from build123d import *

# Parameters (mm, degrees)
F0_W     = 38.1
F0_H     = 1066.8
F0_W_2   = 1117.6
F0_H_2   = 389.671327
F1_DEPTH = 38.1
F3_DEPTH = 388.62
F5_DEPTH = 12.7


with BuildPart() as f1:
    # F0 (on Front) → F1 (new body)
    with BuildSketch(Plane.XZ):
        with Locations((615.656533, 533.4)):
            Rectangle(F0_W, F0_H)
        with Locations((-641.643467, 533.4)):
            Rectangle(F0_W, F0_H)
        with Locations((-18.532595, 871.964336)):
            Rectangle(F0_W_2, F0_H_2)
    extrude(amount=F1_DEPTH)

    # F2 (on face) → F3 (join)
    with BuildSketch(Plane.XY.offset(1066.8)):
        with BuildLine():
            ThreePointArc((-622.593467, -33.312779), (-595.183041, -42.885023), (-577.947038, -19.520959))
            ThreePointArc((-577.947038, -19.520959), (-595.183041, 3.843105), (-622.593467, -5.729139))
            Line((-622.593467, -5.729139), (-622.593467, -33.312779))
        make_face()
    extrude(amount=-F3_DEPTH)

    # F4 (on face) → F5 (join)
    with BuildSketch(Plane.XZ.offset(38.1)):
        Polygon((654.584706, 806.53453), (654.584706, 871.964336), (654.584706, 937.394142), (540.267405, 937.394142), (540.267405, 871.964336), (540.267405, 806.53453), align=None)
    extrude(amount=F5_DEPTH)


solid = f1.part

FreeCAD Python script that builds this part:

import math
import FreeCAD as App
import Part
import Sketcher
Q = App.Units.Quantity

doc = App.newDocument("Part")
body = doc.addObject("PartDesign::Body", "Body")
body.AllowCompound = True

sketch1 = body.newObject("Sketcher::SketchObject", "Sketch")
sketch1.AttachmentSupport = (doc.getObject("XZ_Plane"), [""])
sketch1.MapMode = "FlatFace"
sketch1.addGeometry([
    Part.LineSegment(App.Vector(597, 1067, 0), App.Vector(597, 0, 0)),
    Part.LineSegment(App.Vector(597, 0, 0), App.Vector(635, 0, 0)),
    Part.LineSegment(App.Vector(635, 0, 0), App.Vector(635, 1067, 0)),
    Part.LineSegment(App.Vector(635, 1067, 0), App.Vector(597, 1067, 0)),
    Part.LineSegment(App.Vector(-661, 1067, 0), App.Vector(-661, 0, 0)),
    Part.LineSegment(App.Vector(-661, 0, 0), App.Vector(-623, 0, 0)),
    Part.LineSegment(App.Vector(-623, 0, 0), App.Vector(-623, 1067, 0)),
    Part.LineSegment(App.Vector(-623, 1067, 0), App.Vector(-661, 1067, 0)),
    Part.LineSegment(App.Vector(-577, 1067, 0), App.Vector(-577, 677, 0)),
    Part.LineSegment(App.Vector(-577, 677, 0), App.Vector(540, 677, 0)),
    Part.LineSegment(App.Vector(540, 677, 0), App.Vector(540, 1067, 0)),
    Part.LineSegment(App.Vector(540, 1067, 0), App.Vector(-577, 1067, 0)),
], False)
sketch1.addConstraint([
    Sketcher.Constraint("Coincident", 0, 2, 1, 1),
    Sketcher.Constraint("Coincident", 1, 2, 2, 1),
    Sketcher.Constraint("Coincident", 2, 2, 3, 1),
    Sketcher.Constraint("Coincident", 3, 2, 0, 1),
    Sketcher.Constraint("Coincident", 4, 2, 5, 1),
    Sketcher.Constraint("Coincident", 5, 2, 6, 1),
    Sketcher.Constraint("Coincident", 6, 2, 7, 1),
    Sketcher.Constraint("Coincident", 7, 2, 4, 1),
    Sketcher.Constraint("Coincident", 8, 2, 9, 1),
    Sketcher.Constraint("Coincident", 9, 2, 10, 1),
    Sketcher.Constraint("Coincident", 10, 2, 11, 1),
    Sketcher.Constraint("Coincident", 11, 2, 8, 1),
    Sketcher.Constraint("Vertical", 0),
    Sketcher.Constraint("Horizontal", 1),
    Sketcher.Constraint("Vertical", 2),
    Sketcher.Constraint("Horizontal", 3),
    Sketcher.Constraint("Vertical", 4),
    Sketcher.Constraint("Horizontal", 5),
    Sketcher.Constraint("Vertical", 6),
    Sketcher.Constraint("Horizontal", 7),
    Sketcher.Constraint("Vertical", 8),
    Sketcher.Constraint("Horizontal", 9),
    Sketcher.Constraint("Vertical", 10),
    Sketcher.Constraint("Horizontal", 11),
    Sketcher.Constraint("PointOnObject", 0, 2, -1),
    Sketcher.Constraint("PointOnObject", 4, 2, -1),
    Sketcher.Constraint("Horizontal", 3, 2, 6, 2),
    Sketcher.Constraint("Horizontal", 7, 2, 10, 2),
    Sketcher.Constraint("Equal", 3, 5),
    Sketcher.Constraint("DistanceX", 9, 1, 9, 2, Q("44 in")),
    Sketcher.Constraint("DistanceY", 0, 2, 0, 1, Q("42 in")),
    Sketcher.Constraint("DistanceX", 1, 1, 1, 2, Q("1.5 in")),
    Sketcher.Constraint("DistanceX", 4, 2, 1, 2, Q("51 in")),
    Sketcher.Constraint("DistanceY", 8, 2, 8, 1, Q("389.671327 mm")),
    Sketcher.Constraint("DistanceX", 8, 2, 3, 2, Q("1173.939128 mm")),
    Sketcher.Constraint("DistanceX", -1, 1, 0, 2, Q("596.606533 mm")),
])
pad1 = body.newObject("PartDesign::Pad", "Pad")
pad1.Profile = sketch1
pad1.Length = Q("1.5 in")

sketch2 = body.newObject("Sketcher::SketchObject", "Sketch001")
sketch2.AttachmentSupport = (doc.getObject("XY_Plane"), [""])
sketch2.MapMode = "FlatFace"
sketch2.AttachmentOffset = App.Placement(App.Vector(0, 0, 42 * 25.4), App.Rotation())
sketch2.addGeometry([
    Part.ArcOfCircle(Part.Circle(App.Vector(-602, -20, 0), App.Vector(0, 0, 1), 24), math.radians(-146), math.radians(0)),
    Part.ArcOfCircle(Part.Circle(App.Vector(-602, -20, 0), App.Vector(0, 0, 1), 24), math.radians(0), math.radians(146)),
    Part.LineSegment(App.Vector(-623, -6, 0), App.Vector(-623, -33, 0)),
], False)
sketch2.addConstraint([
    Sketcher.Constraint("Tangent", 0, 2, 1, 1),
    Sketcher.Constraint("Coincident", 1, 2, 2, 1),
    Sketcher.Constraint("Coincident", 2, 2, 0, 1),
    Sketcher.Constraint("Vertical", 2),
    Sketcher.Constraint("Equal", 0, 1),
    Sketcher.Constraint("Horizontal", 1, 3, 0, 2),
    Sketcher.Constraint("Radius", 0, Q("24.453444 mm")),
    Sketcher.Constraint("DistanceY", 2, 2, 2, 1, Q("27.58364 mm")),
    Sketcher.Constraint("DistanceY", 0, 3, -1, 1, Q("19.520959 mm")),
    Sketcher.Constraint("DistanceX", 0, 2, -1, 1, Q("577.947038 mm")),
])
pad2 = body.newObject("PartDesign::Pad", "Pad001")
pad2.Profile = sketch2
pad2.Length = Q("15.3 in")
pad2.Reversed = True

sketch3 = body.newObject("Sketcher::SketchObject", "Sketch002")
sketch3.AttachmentSupport = (doc.getObject("XZ_Plane"), [""])
sketch3.MapMode = "FlatFace"
sketch3.AttachmentOffset = App.Placement(App.Vector(0, 0, 1.5 * 25.4), App.Rotation())
sketch3.addGeometry([
    Part.LineSegment(App.Vector(655, 807, 0), App.Vector(655, 937, 0)),
    Part.LineSegment(App.Vector(655, 937, 0), App.Vector(540, 937, 0)),
    Part.LineSegment(App.Vector(540, 937, 0), App.Vector(540, 807, 0)),
    Part.LineSegment(App.Vector(540, 807, 0), App.Vector(655, 807, 0)),
], False)
sketch3.addConstraint([
    Sketcher.Constraint("Coincident", 0, 2, 1, 1),
    Sketcher.Constraint("Coincident", 1, 2, 2, 1),
    Sketcher.Constraint("Coincident", 2, 2, 3, 1),
    Sketcher.Constraint("Coincident", 3, 2, 0, 1),
    Sketcher.Constraint("Vertical", 0),
    Sketcher.Constraint("Horizontal", 1),
    Sketcher.Constraint("Vertical", 2),
    Sketcher.Constraint("Horizontal", 3),
    Sketcher.Constraint("DistanceX", 1, 2, 1, 1, Q("114.317301 mm")),
    Sketcher.Constraint("DistanceY", 0, 1, 0, 2, Q("130.859612 mm")),
    Sketcher.Constraint("DistanceY", -1, 1, 0, 2, Q("937.394142 mm")),
    Sketcher.Constraint("DistanceX", -1, 1, 0, 2, Q("654.584706 mm")),
])
pad3 = body.newObject("PartDesign::Pad", "Pad002")
pad3.Profile = sketch3
pad3.Length = Q("0.5 in")

doc.recompute()
